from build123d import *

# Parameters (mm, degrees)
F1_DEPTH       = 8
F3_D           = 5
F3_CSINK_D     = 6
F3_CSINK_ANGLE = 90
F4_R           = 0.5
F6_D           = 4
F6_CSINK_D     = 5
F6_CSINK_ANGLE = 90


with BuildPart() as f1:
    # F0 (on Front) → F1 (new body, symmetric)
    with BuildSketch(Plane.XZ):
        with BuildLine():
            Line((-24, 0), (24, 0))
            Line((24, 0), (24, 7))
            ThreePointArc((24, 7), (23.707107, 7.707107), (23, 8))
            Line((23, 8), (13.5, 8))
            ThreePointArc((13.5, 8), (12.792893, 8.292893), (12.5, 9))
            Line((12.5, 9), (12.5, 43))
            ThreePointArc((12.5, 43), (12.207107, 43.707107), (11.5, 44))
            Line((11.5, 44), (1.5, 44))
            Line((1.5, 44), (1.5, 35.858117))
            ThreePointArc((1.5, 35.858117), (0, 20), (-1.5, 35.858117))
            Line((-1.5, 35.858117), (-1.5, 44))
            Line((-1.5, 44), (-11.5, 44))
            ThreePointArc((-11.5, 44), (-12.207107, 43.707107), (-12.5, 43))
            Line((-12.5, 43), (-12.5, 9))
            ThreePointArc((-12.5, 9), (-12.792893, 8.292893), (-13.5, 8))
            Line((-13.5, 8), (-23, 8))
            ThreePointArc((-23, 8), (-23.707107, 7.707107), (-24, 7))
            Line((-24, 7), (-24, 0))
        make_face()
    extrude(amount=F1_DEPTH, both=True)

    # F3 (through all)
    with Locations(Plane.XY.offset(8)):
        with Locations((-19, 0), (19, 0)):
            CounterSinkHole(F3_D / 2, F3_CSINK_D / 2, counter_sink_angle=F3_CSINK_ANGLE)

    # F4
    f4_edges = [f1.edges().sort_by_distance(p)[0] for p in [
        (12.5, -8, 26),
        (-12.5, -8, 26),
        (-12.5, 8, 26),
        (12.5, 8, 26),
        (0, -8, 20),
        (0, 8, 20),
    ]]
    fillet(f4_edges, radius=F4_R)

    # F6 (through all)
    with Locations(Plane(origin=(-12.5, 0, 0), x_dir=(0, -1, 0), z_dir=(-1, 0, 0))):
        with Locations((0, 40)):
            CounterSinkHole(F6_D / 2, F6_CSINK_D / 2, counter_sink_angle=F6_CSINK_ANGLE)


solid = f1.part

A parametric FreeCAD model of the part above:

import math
import FreeCAD as App
import Part
import Sketcher
from FreeCAD import Vector


def edges_at(feature, points):
    """Names of the edges that pass closest to the given points."""
    edges = feature.Shape.Edges
    near = lambda p: min(range(len(edges)), key=lambda i: edges[i].distToShape(Part.Vertex(*p))[0])
    return sorted({f"Edge{near(p) + 1}" for p in points})

doc = App.newDocument("Part")
body = doc.addObject("PartDesign::Body", "Body")

# Sketch on XZ plane
sketch1 = body.newObject("Sketcher::SketchObject", "Sketch")
sketch1.AttachmentSupport = (doc.getObject("XZ_Plane"), [""])
sketch1.MapMode = "FlatFace"
sketch1.addGeometry([
    Part.LineSegment(Vector(-24, 0, 0), Vector(24, 0, 0)),  # 0
    Part.LineSegment(Vector(24, 0, 0), Vector(24, 7, 0)),  # 1
    Part.ArcOfCircle(Part.Circle(Vector(23, 7, 0), Vector(0, 0, 1), 1), math.radians(0), math.radians(90)),  # 2
    Part.LineSegment(Vector(23, 8, 0), Vector(13.5, 8, 0)),  # 3
    Part.ArcOfCircle(Part.Circle(Vector(13.5, 9, 0), Vector(0, 0, 1), 1), math.radians(180), math.radians(270)),  # 4
    Part.LineSegment(Vector(12.5, 9, 0), Vector(12.5, 43, 0)),  # 5
    Part.ArcOfCircle(Part.Circle(Vector(11.5, 43, 0), Vector(0, 0, 1), 1), math.radians(0), math.radians(90)),  # 6
    Part.LineSegment(Vector(11.5, 44, 0), Vector(1.5, 44, 0)),  # 7
    Part.LineSegment(Vector(1.5, 44, 0), Vector(1.5, 35.9, 0)),  # 8
    Part.ArcOfCircle(Part.Circle(Vector(0, 28, 0), Vector(0, 0, 1), 8), math.radians(101), math.radians(439)),  # 9
    Part.LineSegment(Vector(-1.5, 35.9, 0), Vector(-1.5, 44, 0)),  # 10
    Part.LineSegment(Vector(-1.5, 44, 0), Vector(-11.5, 44, 0)),  # 11
    Part.ArcOfCircle(Part.Circle(Vector(-11.5, 43, 0), Vector(0, 0, 1), 1), math.radians(90), math.radians(180)),  # 12
    Part.LineSegment(Vector(-12.5, 43, 0), Vector(-12.5, 9, 0)),  # 13
    Part.ArcOfCircle(Part.Circle(Vector(-13.5, 9, 0), Vector(0, 0, 1), 1), math.radians(-90), math.radians(0)),  # 14
    Part.LineSegment(Vector(-13.5, 8, 0), Vector(-23, 8, 0)),  # 15
    Part.ArcOfCircle(Part.Circle(Vector(-23, 7, 0), Vector(0, 0, 1), 1), math.radians(90), math.radians(180)),  # 16
    Part.LineSegment(Vector(-24, 7, 0), Vector(-24, 0, 0)),  # 17
], False)
sketch1.addConstraint([
    Sketcher.Constraint("Coincident", 0, 2, 1, 1),
    Sketcher.Constraint("Tangent", 1, 2, 2, 1),
    Sketcher.Constraint("Tangent", 2, 2, 3, 1),
    Sketcher.Constraint("Tangent", 3, 2, 4, 2),
    Sketcher.Constraint("Tangent", 4, 1, 5, 1),
    Sketcher.Constraint("Tangent", 5, 2, 6, 1),
    Sketcher.Constraint("Tangent", 6, 2, 7, 1),
    Sketcher.Constraint("Coincident", 7, 2, 8, 1),
    Sketcher.Constraint("Coincident", 8, 2, 9, 2),
    Sketcher.Constraint("Coincident", 9, 1, 10, 1),
    Sketcher.Constraint("Coincident", 10, 2, 11, 1),
    Sketcher.Constraint("Tangent", 11, 2, 12, 1),
    Sketcher.Constraint("Tangent", 12, 2, 13, 1),
    Sketcher.Constraint("Tangent", 13, 2, 14, 2),
    Sketcher.Constraint("Tangent", 14, 1, 15, 1),
    Sketcher.Constraint("Tangent", 15, 2, 16, 1),
    Sketcher.Constraint("Tangent", 16, 2, 17, 1),
    Sketcher.Constraint("Coincident", 17, 2, 0, 1),
    Sketcher.Constraint("Horizontal", 0),
    Sketcher.Constraint("Vertical", 1),
    Sketcher.Constraint("Horizontal", 3),
    Sketcher.Constraint("Vertical", 5),
    Sketcher.Constraint("Horizontal", 7),
    Sketcher.Constraint("Vertical", 8),
    Sketcher.Constraint("Vertical", 10),
    Sketcher.Constraint("Horizontal", 11),
    Sketcher.Constraint("Vertical", 13),
    Sketcher.Constraint("Horizontal", 15),
    Sketcher.Constraint("Vertical", 17),
    Sketcher.Constraint("Equal", 2, 4),
    Sketcher.Constraint("Equal", 4, 6),
    Sketcher.Constraint("Equal", 6, 12),
    Sketcher.Constraint("Equal", 12, 14),
    Sketcher.Constraint("Equal", 14, 16),
    Sketcher.Constraint("Symmetric", 0, 2, 17, 2, -1, 1),
    Sketcher.Constraint("Symmetric", 6, 3, 12, 3, -2),
    Sketcher.Constraint("Symmetric", 8, 2, 9, 1, -2),
    Sketcher.Constraint("Horizontal", 4, 3, 14, 3),
    Sketcher.Constraint("Radius", 2, 0.999999),
    Sketcher.Constraint("Radius", 9, 8.0),
    Sketcher.Constraint("DistanceX", 0, 1, 0, 2, 48.0),
    Sketcher.Constraint("DistanceX", 7, 2, 7, 1, 10.0),
    Sketcher.Constraint("DistanceY", 1, 1, 1, 2, 7.0),
    Sketcher.Constraint("DistanceY", 5, 1, 5, 2, 34.0),
    Sketcher.Constraint("DistanceX", 3, 2, 3, 1, 9.5),
    Sketcher.Constraint("DistanceY", -1, 1, 9, 3, 28.0),
])
pad1 = body.newObject("PartDesign::Pad", "Pad")
pad1.Profile = sketch1
pad1.Length = 16
pad1.Midplane = True

# Sketch on XY plane
sketch2 = body.newObject("Sketcher::SketchObject", "Sketch001")
sketch2.AttachmentSupport = (doc.getObject("XY_Plane"), [""])
sketch2.MapMode = "FlatFace"
sketch2.AttachmentOffset = App.Placement(Vector(0, 0, 8), App.Rotation())
sketch2.addGeometry([
    Part.Circle(Vector(-19, 0, 0), Vector(0, 0, 1), 2.5),
    Part.Circle(Vector(19, 0, 0), Vector(0, 0, 1), 2.5),
], False)
sketch2.addConstraint([
    Sketcher.Constraint("Equal", 0, 1),
    Sketcher.Constraint("Symmetric", 0, 3, 1, 3, -1, 1),
    Sketcher.Constraint("PointOnObject", 0, 3, -1),
    Sketcher.Constraint("Diameter", 0, 5.0),
    Sketcher.Constraint("DistanceX", 0, 3, -1, 1, 19.0),
])
doc.recompute()
hole = body.newObject("PartDesign::Hole", "Hole")
hole.Profile = sketch2
hole.ThreadType = "None"
hole.Diameter = 5
hole.DepthType = "ThroughAll"
hole.HoleCutType = "Countersink"
hole.HoleCutDiameter = 6
hole.HoleCutCountersinkAngle = 90
doc.recompute()

fillet = body.newObject("PartDesign::Fillet", "Fillet")
fillet.Base = (hole, edges_at(hole, [
    (12.5, -8, 26),
    (-12.5, -8, 26),
    (-12.5, 8, 26),
    (12.5, 8, 26),
    (0, -8, 20),
    (0, 8, 20),
]))
fillet.Radius = 0.5

# Sketch on YZ plane
sketch3 = body.newObject("Sketcher::SketchObject", "Sketch002")
sketch3.AttachmentSupport = (doc.getObject("YZ_Plane"), [""])
sketch3.MapMode = "FlatFace"
sketch3.AttachmentOffset = App.Placement(Vector(0, 0, -12.5), App.Rotation())
sketch3.addGeometry(Part.Circle(Vector(0, 40, 0), Vector(0, 0, 1), 2), False)
sketch3.addConstraint([
    Sketcher.Constraint("PointOnObject", 0, 3, -2),
    Sketcher.Constraint("Diameter", 0, 4.0),
    Sketcher.Constraint("DistanceY", -1, 1, 0, 3, 40.0),
])
doc.recompute()
hole2 = body.newObject("PartDesign::Hole", "Hole001")
hole2.Profile = sketch3
hole2.ThreadType = "None"
hole2.Diameter = 4
hole2.DepthType = "ThroughAll"
hole2.HoleCutType = "Countersink"
hole2.HoleCutDiameter = 5
hole2.HoleCutCountersinkAngle = 90
hole2.Reversed = True

doc.recompute()
